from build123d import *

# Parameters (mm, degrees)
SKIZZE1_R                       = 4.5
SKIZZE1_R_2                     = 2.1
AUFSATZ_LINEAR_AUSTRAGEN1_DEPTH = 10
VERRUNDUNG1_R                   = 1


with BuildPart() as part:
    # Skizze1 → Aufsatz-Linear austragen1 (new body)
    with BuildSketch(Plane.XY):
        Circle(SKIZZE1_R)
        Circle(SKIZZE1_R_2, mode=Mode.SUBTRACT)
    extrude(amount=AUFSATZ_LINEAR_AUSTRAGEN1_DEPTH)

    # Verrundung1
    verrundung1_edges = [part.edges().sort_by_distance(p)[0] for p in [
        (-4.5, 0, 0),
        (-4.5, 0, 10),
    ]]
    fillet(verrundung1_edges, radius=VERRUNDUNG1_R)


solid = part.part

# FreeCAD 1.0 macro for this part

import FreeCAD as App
import Part
import Sketcher
Q = App.Units.Quantity


def edges_at(feature, points):
    """Names of the edges that pass closest to the given points."""
    edges = feature.Shape.Edges
    near = lambda p: min(range(len(edges)), key=lambda i: edges[i].distToShape(Part.Vertex(*p))[0])
    return sorted({f"Edge{near(p) + 1}" for p in points})

doc = App.newDocument("Part")
body = doc.addObject("PartDesign::Body", "Body")

sketch1 = doc.addObject("Sketcher::SketchObject", "Sketch")
body.addObject(sketch1)
sketch1.AttachmentSupport = (doc.XY_Plane, [""])
sketch1.MapMode = "FlatFace"
sketch1.addGeometry([
    Part.Circle(App.Vector(0, 0, 0), App.Vector(0, 0, 1), 4.5),
    Part.Circle(App.Vector(0, 0, 0), App.Vector(0, 0, 1), 2.1),
], False)
sketch1.addConstraint([
    Sketcher.Constraint("Coincident", 0, 3, -1, 1),
    Sketcher.Constraint("Coincident", 1, 3, -1, 1),
    Sketcher.Constraint("Diameter", 0, Q("9 mm")),
    Sketcher.Constraint("Diameter", 1, Q("4.2 mm")),
])
pad1 = doc.addObject("PartDesign::Pad", "Pad")
body.addObject(pad1)
pad1.Profile = sketch1
pad1.Length = 10
doc.recompute()

fillet = doc.addObject("PartDesign::Fillet", "Fillet")
body.addObject(fillet)
fillet.Base = (pad1, edges_at(pad1, [(-4.5, 0, 0), (-4.5, 0, 10)]))
fillet.Radius = 1

doc.recompute()
